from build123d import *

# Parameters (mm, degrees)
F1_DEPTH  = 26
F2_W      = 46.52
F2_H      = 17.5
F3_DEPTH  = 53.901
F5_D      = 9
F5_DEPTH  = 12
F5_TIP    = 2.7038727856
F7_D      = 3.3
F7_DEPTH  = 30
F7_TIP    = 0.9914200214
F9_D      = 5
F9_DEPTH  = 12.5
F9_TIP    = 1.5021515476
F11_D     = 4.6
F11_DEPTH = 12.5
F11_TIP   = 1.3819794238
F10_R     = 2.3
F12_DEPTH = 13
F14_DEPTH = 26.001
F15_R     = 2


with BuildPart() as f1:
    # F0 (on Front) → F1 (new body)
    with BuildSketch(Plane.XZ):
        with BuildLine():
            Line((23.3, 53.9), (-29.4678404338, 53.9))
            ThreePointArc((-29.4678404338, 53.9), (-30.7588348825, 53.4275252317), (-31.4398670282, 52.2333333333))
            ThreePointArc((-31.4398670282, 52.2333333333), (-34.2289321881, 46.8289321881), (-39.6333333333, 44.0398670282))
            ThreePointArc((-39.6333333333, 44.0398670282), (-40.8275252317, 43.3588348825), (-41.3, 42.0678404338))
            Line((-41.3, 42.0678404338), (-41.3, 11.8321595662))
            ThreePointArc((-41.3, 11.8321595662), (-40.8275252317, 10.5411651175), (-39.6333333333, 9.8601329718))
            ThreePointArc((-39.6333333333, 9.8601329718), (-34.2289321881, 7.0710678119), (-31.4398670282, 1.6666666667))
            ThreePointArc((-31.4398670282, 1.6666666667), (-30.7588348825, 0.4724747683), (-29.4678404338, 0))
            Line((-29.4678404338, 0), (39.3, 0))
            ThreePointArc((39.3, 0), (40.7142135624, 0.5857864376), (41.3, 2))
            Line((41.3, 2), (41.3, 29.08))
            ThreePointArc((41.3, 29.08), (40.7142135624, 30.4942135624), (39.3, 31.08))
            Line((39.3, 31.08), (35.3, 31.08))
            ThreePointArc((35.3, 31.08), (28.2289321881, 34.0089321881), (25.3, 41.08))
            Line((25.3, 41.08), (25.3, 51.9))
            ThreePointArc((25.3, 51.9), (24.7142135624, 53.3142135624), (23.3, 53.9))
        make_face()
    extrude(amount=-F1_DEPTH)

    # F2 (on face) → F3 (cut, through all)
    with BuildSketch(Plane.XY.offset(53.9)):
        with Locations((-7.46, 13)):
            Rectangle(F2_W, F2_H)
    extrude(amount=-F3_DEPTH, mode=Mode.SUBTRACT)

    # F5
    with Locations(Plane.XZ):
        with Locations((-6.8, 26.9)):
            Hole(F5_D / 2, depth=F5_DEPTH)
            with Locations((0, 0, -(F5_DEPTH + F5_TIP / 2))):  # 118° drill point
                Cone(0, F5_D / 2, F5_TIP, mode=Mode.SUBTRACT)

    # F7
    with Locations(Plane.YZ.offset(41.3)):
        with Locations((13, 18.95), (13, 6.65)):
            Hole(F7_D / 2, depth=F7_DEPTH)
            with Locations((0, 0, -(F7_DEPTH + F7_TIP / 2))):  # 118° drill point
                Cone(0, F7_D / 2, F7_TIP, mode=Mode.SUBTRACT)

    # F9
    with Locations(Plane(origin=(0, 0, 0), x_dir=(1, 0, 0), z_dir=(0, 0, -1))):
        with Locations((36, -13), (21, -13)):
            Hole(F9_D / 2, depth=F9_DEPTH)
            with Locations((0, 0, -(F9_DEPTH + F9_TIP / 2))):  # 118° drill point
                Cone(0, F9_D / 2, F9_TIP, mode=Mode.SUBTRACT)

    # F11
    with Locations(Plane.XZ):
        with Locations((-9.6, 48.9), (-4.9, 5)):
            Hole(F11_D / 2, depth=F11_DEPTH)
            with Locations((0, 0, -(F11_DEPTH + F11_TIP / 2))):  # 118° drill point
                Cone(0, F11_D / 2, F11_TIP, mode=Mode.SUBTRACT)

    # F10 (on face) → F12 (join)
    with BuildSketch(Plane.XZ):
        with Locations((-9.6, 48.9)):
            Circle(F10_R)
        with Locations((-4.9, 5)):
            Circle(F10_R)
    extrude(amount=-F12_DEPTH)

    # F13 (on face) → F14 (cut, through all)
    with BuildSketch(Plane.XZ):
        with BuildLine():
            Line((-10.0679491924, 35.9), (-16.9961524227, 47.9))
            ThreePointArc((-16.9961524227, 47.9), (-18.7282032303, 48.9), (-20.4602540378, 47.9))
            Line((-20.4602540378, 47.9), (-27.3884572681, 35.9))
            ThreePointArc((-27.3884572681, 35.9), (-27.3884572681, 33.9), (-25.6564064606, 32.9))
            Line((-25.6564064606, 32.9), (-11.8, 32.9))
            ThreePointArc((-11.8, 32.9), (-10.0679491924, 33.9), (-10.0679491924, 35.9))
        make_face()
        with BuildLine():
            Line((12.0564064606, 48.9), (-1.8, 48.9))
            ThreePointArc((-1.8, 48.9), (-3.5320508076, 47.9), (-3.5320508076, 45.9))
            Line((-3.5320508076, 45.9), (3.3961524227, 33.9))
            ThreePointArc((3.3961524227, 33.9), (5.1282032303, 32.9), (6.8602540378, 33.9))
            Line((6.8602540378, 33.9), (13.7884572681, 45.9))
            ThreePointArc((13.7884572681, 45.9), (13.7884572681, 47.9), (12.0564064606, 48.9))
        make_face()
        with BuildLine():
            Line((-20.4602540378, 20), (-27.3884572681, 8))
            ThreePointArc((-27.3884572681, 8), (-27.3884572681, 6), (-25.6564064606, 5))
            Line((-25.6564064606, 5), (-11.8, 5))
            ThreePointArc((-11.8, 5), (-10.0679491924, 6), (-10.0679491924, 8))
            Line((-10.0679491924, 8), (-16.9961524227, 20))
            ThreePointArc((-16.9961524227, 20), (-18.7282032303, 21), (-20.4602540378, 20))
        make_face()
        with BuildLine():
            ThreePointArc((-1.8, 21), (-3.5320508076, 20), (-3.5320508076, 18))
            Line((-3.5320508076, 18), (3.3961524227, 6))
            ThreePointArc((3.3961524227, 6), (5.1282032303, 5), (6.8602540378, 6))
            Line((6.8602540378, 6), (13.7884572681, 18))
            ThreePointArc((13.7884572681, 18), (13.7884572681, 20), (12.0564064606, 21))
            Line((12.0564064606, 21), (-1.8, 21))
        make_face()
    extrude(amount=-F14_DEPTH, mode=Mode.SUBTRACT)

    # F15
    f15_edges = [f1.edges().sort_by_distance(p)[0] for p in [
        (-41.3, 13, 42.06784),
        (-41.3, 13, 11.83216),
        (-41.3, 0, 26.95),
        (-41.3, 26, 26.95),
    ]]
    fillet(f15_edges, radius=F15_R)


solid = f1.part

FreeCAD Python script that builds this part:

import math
import FreeCAD as App
import Part
import Sketcher
from FreeCAD import Vector
Q = App.Units.Quantity


def edges_at(feature, points):
    """Names of the edges that pass closest to the given points."""
    edges = feature.Shape.Edges
    near = lambda p: min(range(len(edges)), key=lambda i: edges[i].distToShape(Part.Vertex(*p))[0])
    return sorted({f"Edge{near(p) + 1}" for p in points})


def add_polygon(sketch, points):
    """Adds a closed chain of lines whose ends are joined by coincident constraints."""
    first, n = sketch.GeometryCount, len(points)
    for a, b in zip(points, points[1:] + points[:1]):
        sketch.addGeometry(Part.LineSegment(App.Vector(*a, 0), App.Vector(*b, 0)), False)
    for i in range(n):
        sketch.addConstraint(Sketcher.Constraint("Coincident", first + i, 2, first + (i + 1) % n, 1))

doc = App.newDocument("Part")
params = doc.addObject("Spreadsheet::Sheet", "Params")
for row, (alias, value) in enumerate([
    ("sketch1_radius", "2 mm"),
    ("sketch1_radius2", "10 mm"),
    ("sketch1_width", "4 mm"),
    ("sketch1_height", "27.08 mm"),
    ("sketch1_height2", "10.82 mm"),
    ("pad1_length", "26 mm"),
    ("sketch2_height", "17.5 mm"),
    ("sketch2_width", "46.52 mm"),
    ("sketch3_diameter", "9 mm"),
    ("hole_diameter", "9 mm"),
    ("hole_depth", "12 mm"),
    ("sketch4_diameter", "3.3 mm"),
    ("hole2_diameter", "3.3 mm"),
    ("hole2_depth", "30 mm"),
    ("sketch5_diameter", "5 mm"),
    ("hole3_diameter", "5 mm"),
    ("hole3_depth", "12.5 mm"),
    ("sketch6_diameter", "4.6 mm"),
    ("hole4_diameter", "4.6 mm"),
    ("hole4_depth", "12.5 mm"),
    ("sketch7_diameter", "4.6 mm"),
    ("pad2_length", "13 mm"),
    ("sketch8_radius", "2 mm"),
    ("fillet_radius", "2 mm"),
], start=1):
    params.set(f"A{row}", alias)
    params.set(f"B{row}", "=" + value)
    params.setAlias(f"B{row}", alias)

body = doc.addObject("PartDesign::Body", "Body")

# Sketch on XZ plane
sketch1 = body.newObject("Sketcher::SketchObject", "Sketch")
sketch1.AttachmentSupport = (doc.getObject("XZ_Plane"), [""])
sketch1.MapMode = "FlatFace"
sketch1.addGeometry(Part.LineSegment(Vector(23.3, 53.9, 0), Vector(-29.5, 53.9, 0)), False)
sketch1.addGeometry(Part.ArcOfCircle(Part.Circle(Vector(-29.5, 51.9, 0), Vector(0, 0, 1), 2), math.radians(90), math.radians(170)), False)
sketch1.addGeometry(Part.ArcOfCircle(Part.Circle(Vector(-41.3, 53.9, 0), Vector(0, 0, 1), 10), math.radians(-80), math.radians(-10)), False)
sketch1.addGeometry(Part.ArcOfCircle(Part.Circle(Vector(-39.3, 42.1, 0), Vector(0, 0, 1), 2), math.radians(100), math.radians(180)), False)
sketch1.addGeometry(Part.LineSegment(Vector(-41.3, 42.1, 0), Vector(-41.3, 11.8, 0)), False)
sketch1.addGeometry(Part.ArcOfCircle(Part.Circle(Vector(-39.3, 11.8, 0), Vector(0, 0, 1), 2), math.radians(180), math.radians(260)), False)
sketch1.addGeometry(Part.ArcOfCircle(Part.Circle(Vector(-41.3, 0, 0), Vector(0, 0, 1), 10), math.radians(10), math.radians(80)), False)
sketch1.addGeometry(Part.ArcOfCircle(Part.Circle(Vector(-29.5, 2, 0), Vector(0, 0, 1), 2), math.radians(-170), math.radians(-90)), False)
sketch1.addGeometry(Part.LineSegment(Vector(-29.5, 0, 0), Vector(39.3, 0, 0)), False)
sketch1.addGeometry(Part.ArcOfCircle(Part.Circle(Vector(39.3, 2, 0), Vector(0, 0, 1), 2), math.radians(-90), math.radians(0)), False)
sketch1.addGeometry(Part.LineSegment(Vector(41.3, 2, 0), Vector(41.3, 29.1, 0)), False)
sketch1.addGeometry(Part.ArcOfCircle(Part.Circle(Vector(39.3, 29.1, 0), Vector(0, 0, 1), 2), math.radians(0), math.radians(90)), False)
sketch1.addGeometry(Part.LineSegment(Vector(39.3, 31.1, 0), Vector(35.3, 31.1, 0)), False)
sketch1.addGeometry(Part.ArcOfCircle(Part.Circle(Vector(35.3, 41.1, 0), Vector(0, 0, 1), 10), math.radians(180), math.radians(270)), False)
sketch1.addGeometry(Part.LineSegment(Vector(25.3, 41.1, 0), Vector(25.3, 51.9, 0)), False)
sketch1.addGeometry(Part.ArcOfCircle(Part.Circle(Vector(23.3, 51.9, 0), Vector(0, 0, 1), 2), math.radians(0), math.radians(90)), False)
sketch1.addConstraint(Sketcher.Constraint("Tangent", 0, 2, 1, 1))
sketch1.addConstraint(Sketcher.Constraint("Tangent", 1, 2, 2, 2))
sketch1.addConstraint(Sketcher.Constraint("Tangent", 2, 1, 3, 1))
sketch1.addConstraint(Sketcher.Constraint("Tangent", 3, 2, 4, 1))
sketch1.addConstraint(Sketcher.Constraint("Tangent", 4, 2, 5, 1))
sketch1.addConstraint(Sketcher.Constraint("Tangent", 5, 2, 6, 2))
sketch1.addConstraint(Sketcher.Constraint("Tangent", 6, 1, 7, 1))
sketch1.addConstraint(Sketcher.Constraint("Tangent", 7, 2, 8, 1))
sketch1.addConstraint(Sketcher.Constraint("Tangent", 8, 2, 9, 1))
sketch1.addConstraint(Sketcher.Constraint("Tangent", 9, 2, 10, 1))
sketch1.addConstraint(Sketcher.Constraint("Tangent", 10, 2, 11, 1))
sketch1.addConstraint(Sketcher.Constraint("Tangent", 11, 2, 12, 1))
sketch1.addConstraint(Sketcher.Constraint("Tangent", 12, 2, 13, 2))
sketch1.addConstraint(Sketcher.Constraint("Tangent", 13, 1, 14, 1))
sketch1.addConstraint(Sketcher.Constraint("Tangent", 14, 2, 15, 1))
sketch1.addConstraint(Sketcher.Constraint("Tangent", 15, 2, 0, 1))
sketch1.addConstraint(Sketcher.Constraint("Horizontal", 0))
sketch1.addConstraint(Sketcher.Constraint("Vertical", 4))
sketch1.addConstraint(Sketcher.Constraint("Horizontal", 8))
sketch1.addConstraint(Sketcher.Constraint("Vertical", 10))
sketch1.addConstraint(Sketcher.Constraint("Horizontal", 12))
sketch1.addConstraint(Sketcher.Constraint("Vertical", 14))
sketch1.addConstraint(Sketcher.Constraint("Equal", 1, 3))
sketch1.addConstraint(Sketcher.Constraint("Equal", 3, 5))
sketch1.addConstraint(Sketcher.Constraint("Equal", 2, 6))
sketch1.addConstraint(Sketcher.Constraint("Equal", 5, 7))
sketch1.addConstraint(Sketcher.Constraint("Equal", 7, 9))
sketch1.addConstraint(Sketcher.Constraint("Equal", 9, 11))
sketch1.addConstraint(Sketcher.Constraint("Equal", 6, 13))
sketch1.addConstraint(Sketcher.Constraint("Equal", 11, 15))
sketch1.addConstraint(Sketcher.Constraint("PointOnObject", 6, 3, -1))
sketch1.addConstraint(Sketcher.Constraint("PointOnObject", 7, 2, -1))
sketch1.addConstraint(Sketcher.Constraint("Horizontal", 2, 3, 0, 2))
sketch1.addConstraint(Sketcher.Constraint("Vertical", 2, 3, 6, 3))
sketch1.addConstraint(Sketcher.Constraint("Vertical", 6, 3, 3, 2))
sketch1.addConstraint(Sketcher.Constraint("Radius", 1, Q("2 mm")))
sketch1.addConstraint(Sketcher.Constraint("Radius", 2, Q("10 mm")))
sketch1.addConstraint(Sketcher.Constraint("DistanceX", 12, 2, 12, 1, Q("4 mm")))
sketch1.addConstraint(Sketcher.Constraint("DistanceY", 10, 1, 10, 2, Q("27.08 mm")))
sketch1.addConstraint(Sketcher.Constraint("DistanceY", 14, 1, 14, 2, Q("10.82 mm")))
sketch1.addConstraint(Sketcher.Constraint("DistanceX", 2, 3, -1, 1, Q("41.3 mm")))
sketch1.addConstraint(Sketcher.Constraint("DistanceX", -1, 1, 9, 3, Q("39.3 mm")))
sketch1.setExpression("Constraints[35]", "Params.sketch1_radius")
sketch1.setExpression("Constraints[36]", "Params.sketch1_radius2")
sketch1.setExpression("Constraints[37]", "Params.sketch1_width")
sketch1.setExpression("Constraints[38]", "Params.sketch1_height")
sketch1.setExpression("Constraints[39]", "Params.sketch1_height2")
pad1 = body.newObject("PartDesign::Pad", "Pad")
pad1.Profile = sketch1
pad1.setExpression("Length", "Params.pad1_length")
pad1.Reversed = True

# Sketch on XY plane
sketch2 = body.newObject("Sketcher::SketchObject", "Sketch001")
sketch2.AttachmentSupport = (doc.getObject("XY_Plane"), [""])
sketch2.MapMode = "FlatFace"
sketch2.AttachmentOffset = App.Placement(Vector(0, 0, 53.9), App.Rotation())
add_polygon(sketch2, [(-31, 22), (-31, 4), (16, 4), (16, 22)])  # lines 0-3
sketch2.addConstraint(Sketcher.Constraint("Vertical", 0))
sketch2.addConstraint(Sketcher.Constraint("Horizontal", 1))
sketch2.addConstraint(Sketcher.Constraint("Vertical", 2))
sketch2.addConstraint(Sketcher.Constraint("Horizontal", 3))
sketch2.addConstraint(Sketcher.Constraint("DistanceY", 0, 2, 0, 1, Q("17.5 mm")))
sketch2.addConstraint(Sketcher.Constraint("DistanceX", 1, 1, 1, 2, Q("46.52 mm")))
sketch2.addConstraint(Sketcher.Constraint("DistanceX", -1, 1, 1, 2, Q("15.8 mm")))
sketch2.addConstraint(Sketcher.Constraint("DistanceY", -1, 1, 0, 2, Q("4.25 mm")))
sketch2.setExpression("Constraints[8]", "Params.sketch2_height")
sketch2.setExpression("Constraints[9]", "Params.sketch2_width")
pocket1 = body.newObject("PartDesign::Pocket", "Pocket")
pocket1.Profile = sketch2
pocket1.Type = "ThroughAll"

# Sketch on XZ plane
sketch3 = body.newObject("Sketcher::SketchObject", "Sketch002")
sketch3.AttachmentSupport = (doc.getObject("XZ_Plane"), [""])
sketch3.MapMode = "FlatFace"
sketch3.addGeometry(Part.Circle(Vector(-6.8, 26.9, 0), Vector(0, 0, 1), 4.5), False)
sketch3.addConstraint(Sketcher.Constraint("Diameter", 0, Q("9 mm")))
sketch3.addConstraint(Sketcher.Constraint("DistanceX", 0, 3, -1, 1, Q("6.8 mm")))
sketch3.addConstraint(Sketcher.Constraint("DistanceY", -1, 1, 0, 3, Q("26.9 mm")))
sketch3.setExpression("Constraints[0]", "Params.sketch3_diameter")
doc.recompute()
hole = body.newObject("PartDesign::Hole", "Hole")
hole.Profile = sketch3
hole.ThreadType = "None"
hole.setExpression("Diameter", "Params.hole_diameter")
hole.DepthType = "Dimension"
hole.setExpression("Depth", "Params.hole_depth")
hole.DrillPoint = "Angled"
hole.DrillPointAngle = 118

# Sketch on YZ plane
sketch4 = body.newObject("Sketcher::SketchObject", "Sketch003")
sketch4.AttachmentSupport = (doc.getObject("YZ_Plane"), [""])
sketch4.MapMode = "FlatFace"
sketch4.AttachmentOffset = App.Placement(Vector(0, 0, 41.3), App.Rotation())
sketch4.addGeometry(Part.Circle(Vector(13, 18.9, 0), Vector(0, 0, 1), 1.6), False)
sketch4.addGeometry(Part.Circle(Vector(13, 6.7, 0), Vector(0, 0, 1), 1.6), False)
sketch4.addConstraint(Sketcher.Constraint("Equal", 0, 1))
sketch4.addConstraint(Sketcher.Constraint("Vertical", 0, 3, 1, 3))
sketch4.addConstraint(Sketcher.Constraint("Diameter", 0, Q("3.3 mm")))
sketch4.addConstraint(Sketcher.Constraint("DistanceX", -1, 1, 0, 3, Q("13 mm")))
sketch4.addConstraint(Sketcher.Constraint("DistanceY", 1, 3, 0, 3, Q("12.3 mm")))
sketch4.addConstraint(Sketcher.Constraint("DistanceY", -1, 1, 0, 3, Q("18.95 mm")))
sketch4.setExpression("Constraints[2]", "Params.sketch4_diameter")
doc.recompute()
hole2 = body.newObject("PartDesign::Hole", "Hole001")
hole2.Profile = sketch4
hole2.ThreadType = "None"
hole2.setExpression("Diameter", "Params.hole2_diameter")
hole2.DepthType = "Dimension"
hole2.setExpression("Depth", "Params.hole2_depth")
hole2.DrillPoint = "Angled"
hole2.DrillPointAngle = 118

# Sketch on XY plane
sketch5 = body.newObject("Sketcher::SketchObject", "Sketch004")
sketch5.AttachmentSupport = (doc.getObject("XY_Plane"), [""])
sketch5.MapMode = "FlatFace"
sketch5.addGeometry(Part.Circle(Vector(36, 13, 0), Vector(0, 0, 1), 2.5), False)
sketch5.addGeometry(Part.Circle(Vector(21, 13, 0), Vector(0, 0, 1), 2.5), False)
sketch5.addConstraint(Sketcher.Constraint("Equal", 0, 1))
sketch5.addConstraint(Sketcher.Constraint("Horizontal", 0, 3, 1, 3))
sketch5.addConstraint(Sketcher.Constraint("Diameter", 0, Q("5 mm")))
sketch5.addConstraint(Sketcher.Constraint("DistanceX", -1, 1, 0, 3, Q("36 mm")))
sketch5.addConstraint(Sketcher.Constraint("DistanceY", -1, 1, 0, 3, Q("13 mm")))
sketch5.addConstraint(Sketcher.Constraint("DistanceX", -1, 1, 1, 3, Q("21 mm")))
sketch5.setExpression("Constraints[2]", "Params.sketch5_diameter")
doc.recompute()
hole3 = body.newObject("PartDesign::Hole", "Hole002")
hole3.Profile = sketch5
hole3.ThreadType = "None"
hole3.setExpression("Diameter", "Params.hole3_diameter")
hole3.DepthType = "Dimension"
hole3.setExpression("Depth", "Params.hole3_depth")
hole3.DrillPoint = "Angled"
hole3.DrillPointAngle = 118
hole3.Reversed = True

# Sketch on XZ plane
sketch6 = body.newObject("Sketcher::SketchObject", "Sketch005")
sketch6.AttachmentSupport = (doc.getObject("XZ_Plane"), [""])
sketch6.MapMode = "FlatFace"
sketch6.addGeometry(Part.Circle(Vector(-9.6, 48.9, 0), Vector(0, 0, 1), 2.3), False)
sketch6.addGeometry(Part.Circle(Vector(-4.9, 5, 0), Vector(0, 0, 1), 2.3), False)
sketch6.addConstraint(Sketcher.Constraint("Equal", 0, 1))
sketch6.addConstraint(Sketcher.Constraint("Diameter", 0, Q("4.6 mm")))
sketch6.addConstraint(Sketcher.Constraint("DistanceY", -1, 1, 1, 3, Q("5 mm")))
sketch6.addConstraint(Sketcher.Constraint("DistanceX", 0, 3, -1, 1, Q("9.6 mm")))
sketch6.addConstraint(Sketcher.Constraint("DistanceY", -1, 1, 0, 3, Q("48.9 mm")))
sketch6.addConstraint(Sketcher.Constraint("DistanceX", 1, 3, -1, 1, Q("4.9 mm")))
sketch6.setExpression("Constraints[1]", "Params.sketch6_diameter")
doc.recompute()
hole4 = body.newObject("PartDesign::Hole", "Hole003")
hole4.Profile = sketch6
hole4.ThreadType = "None"
hole4.setExpression("Diameter", "Params.hole4_diameter")
hole4.DepthType = "Dimension"
hole4.setExpression("Depth", "Params.hole4_depth")
hole4.DrillPoint = "Angled"
hole4.DrillPointAngle = 118

# Sketch on XZ plane
sketch7 = body.newObject("Sketcher::SketchObject", "Sketch006")
sketch7.AttachmentSupport = (doc.getObject("XZ_Plane"), [""])
sketch7.MapMode = "FlatFace"
sketch7.addGeometry(Part.Circle(Vector(-9.6, 48.9, 0), Vector(0, 0, 1), 2.3), False)
sketch7.addGeometry(Part.Circle(Vector(-4.9, 5, 0), Vector(0, 0, 1), 2.3), False)
sketch7.addConstraint(Sketcher.Constraint("Equal", 0, 1))
sketch7.addConstraint(Sketcher.Constraint("Diameter", 0, Q("4.6 mm")))
sketch7.addConstraint(Sketcher.Constraint("DistanceY", -1, 1, 1, 3, Q("5 mm")))
sketch7.addConstraint(Sketcher.Constraint("DistanceX", 0, 3, -1, 1, Q("9.6 mm")))
sketch7.addConstraint(Sketcher.Constraint("DistanceY", -1, 1, 0, 3, Q("48.9 mm")))
sketch7.addConstraint(Sketcher.Constraint("DistanceX", 1, 3, -1, 1, Q("4.9 mm")))
sketch7.setExpression("Constraints[1]", "Params.sketch7_diameter")
pad2 = body.newObject("PartDesign::Pad", "Pad001")
pad2.Profile = sketch7
pad2.setExpression("Length", "Params.pad2_length")
pad2.Reversed = True

# Sketch on XZ plane
sketch8 = body.newObject("Sketcher::SketchObject", "Sketch007")
sketch8.AttachmentSupport = (doc.getObject("XZ_Plane"), [""])
sketch8.MapMode = "FlatFace"
sketch8.addGeometry(Part.LineSegment(Vector(-10.1, 35.9, 0), Vector(-17, 47.9, 0)), False)
sketch8.addGeometry(Part.ArcOfCircle(Part.Circle(Vector(-18.7, 46.9, 0), Vector(0, 0, 1), 2), math.radians(30), math.radians(150)), False)
sketch8.addGeometry(Part.LineSegment(Vector(-20.5, 47.9, 0), Vector(-27.4, 35.9, 0)), False)
sketch8.addGeometry(Part.ArcOfCircle(Part.Circle(Vector(-25.7, 34.9, 0), Vector(0, 0, 1), 2), math.radians(150), math.radians(270)), False)
sketch8.addGeometry(Part.LineSegment(Vector(-25.7, 32.9, 0), Vector(-11.8, 32.9, 0)), False)
sketch8.addGeometry(Part.ArcOfCircle(Part.Circle(Vector(-11.8, 34.9, 0), Vector(0, 0, 1), 2), math.radians(-90), math.radians(30)), False)
sketch8.addGeometry(Part.LineSegment(Vector(12.1, 48.9, 0), Vector(-1.8, 48.9, 0)), False)
sketch8.addGeometry(Part.ArcOfCircle(Part.Circle(Vector(-1.8, 46.9, 0), Vector(0, 0, 1), 2), math.radians(90), math.radians(210)), False)
sketch8.addGeometry(Part.LineSegment(Vector(-3.5, 45.9, 0), Vector(3.4, 33.9, 0)), False)
sketch8.addGeometry(Part.ArcOfCircle(Part.Circle(Vector(5.1, 34.9, 0), Vector(0, 0, 1), 2), math.radians(-150), math.radians(-30)), False)
sketch8.addGeometry(Part.LineSegment(Vector(6.9, 33.9, 0), Vector(13.8, 45.9, 0)), False)
sketch8.addGeometry(Part.ArcOfCircle(Part.Circle(Vector(12.1, 46.9, 0), Vector(0, 0, 1), 2), math.radians(-30), math.radians(90)), False)
sketch8.addGeometry(Part.LineSegment(Vector(-20.5, 20, 0), Vector(-27.4, 8, 0)), False)
sketch8.addGeometry(Part.ArcOfCircle(Part.Circle(Vector(-25.7, 7, 0), Vector(0, 0, 1), 2), math.radians(150), math.radians(270)), False)
sketch8.addGeometry(Part.LineSegment(Vector(-25.7, 5, 0), Vector(-11.8, 5, 0)), False)
sketch8.addGeometry(Part.ArcOfCircle(Part.Circle(Vector(-11.8, 7, 0), Vector(0, 0, 1), 2), math.radians(-90), math.radians(30)), False)
sketch8.addGeometry(Part.LineSegment(Vector(-10.1, 8, 0), Vector(-17, 20, 0)), False)
sketch8.addGeometry(Part.ArcOfCircle(Part.Circle(Vector(-18.7, 19, 0), Vector(0, 0, 1), 2), math.radians(30), math.radians(150)), False)
sketch8.addGeometry(Part.ArcOfCircle(Part.Circle(Vector(-1.8, 19, 0), Vector(0, 0, 1), 2), math.radians(90), math.radians(210)), False)
sketch8.addGeometry(Part.LineSegment(Vector(-3.5, 18, 0), Vector(3.4, 6, 0)), False)
sketch8.addGeometry(Part.ArcOfCircle(Part.Circle(Vector(5.1, 7, 0), Vector(0, 0, 1), 2), math.radians(-150), math.radians(-30)), False)
sketch8.addGeometry(Part.LineSegment(Vector(6.9, 6, 0), Vector(13.8, 18, 0)), False)
sketch8.addGeometry(Part.ArcOfCircle(Part.Circle(Vector(12.1, 19, 0), Vector(0, 0, 1), 2), math.radians(-30), math.radians(90)), False)
sketch8.addGeometry(Part.LineSegment(Vector(12.1, 21, 0), Vector(-1.8, 21, 0)), False)
sketch8.addConstraint(Sketcher.Constraint("Tangent", 0, 2, 1, 1))
sketch8.addConstraint(Sketcher.Constraint("Tangent", 1, 2, 2, 1))
sketch8.addConstraint(Sketcher.Constraint("Tangent", 2, 2, 3, 1))
sketch8.addConstraint(Sketcher.Constraint("Tangent", 3, 2, 4, 1))
sketch8.addConstraint(Sketcher.Constraint("Tangent", 4, 2, 5, 1))
sketch8.addConstraint(Sketcher.Constraint("Tangent", 5, 2, 0, 1))
sketch8.addConstraint(Sketcher.Constraint("Tangent", 6, 2, 7, 1))
sketch8.addConstraint(Sketcher.Constraint("Tangent", 7, 2, 8, 1))
sketch8.addConstraint(Sketcher.Constraint("Tangent", 8, 2, 9, 1))
sketch8.addConstraint(Sketcher.Constraint("Tangent", 9, 2, 10, 1))
sketch8.addConstraint(Sketcher.Constraint("Tangent", 10, 2, 11, 1))
sketch8.addConstraint(Sketcher.Constraint("Tangent", 11, 2, 6, 1))
sketch8.addConstraint(Sketcher.Constraint("Tangent", 12, 2, 13, 1))
sketch8.addConstraint(Sketcher.Constraint("Tangent", 13, 2, 14, 1))
sketch8.addConstraint(Sketcher.Constraint("Tangent", 14, 2, 15, 1))
sketch8.addConstraint(Sketcher.Constraint("Tangent", 15, 2, 16, 1))
sketch8.addConstraint(Sketcher.Constraint("Tangent", 16, 2, 17, 1))
sketch8.addConstraint(Sketcher.Constraint("Tangent", 17, 2, 12, 1))
sketch8.addConstraint(Sketcher.Constraint("Tangent", 18, 2, 19, 1))
sketch8.addConstraint(Sketcher.Constraint("Tangent", 19, 2, 20, 1))
sketch8.addConstraint(Sketcher.Constraint("Tangent", 20, 2, 21, 1))
sketch8.addConstraint(Sketcher.Constraint("Tangent", 21, 2, 22, 1))
sketch8.addConstraint(Sketcher.Constraint("Tangent", 22, 2, 23, 1))
sketch8.addConstraint(Sketcher.Constraint("Tangent", 23, 2, 18, 1))
sketch8.addConstraint(Sketcher.Constraint("Horizontal", 4))
sketch8.addConstraint(Sketcher.Constraint("Horizontal", 6))
sketch8.addConstraint(Sketcher.Constraint("Horizontal", 14))
sketch8.addConstraint(Sketcher.Constraint("Horizontal", 23))
sketch8.addConstraint(Sketcher.Constraint("Equal", 1, 3))
sketch8.addConstraint(Sketcher.Constraint("Equal", 3, 5))
sketch8.addConstraint(Sketcher.Constraint("Equal", 5, 7))
sketch8.addConstraint(Sketcher.Constraint("Equal", 7, 9))
sketch8.addConstraint(Sketcher.Constraint("Equal", 9, 11))
sketch8.addConstraint(Sketcher.Constraint("Equal", 11, 13))
sketch8.addConstraint(Sketcher.Constraint("Equal", 13, 15))
sketch8.addConstraint(Sketcher.Constraint("Equal", 15, 17))
sketch8.addConstraint(Sketcher.Constraint("Equal", 17, 18))
sketch8.addConstraint(Sketcher.Constraint("Equal", 18, 20))
sketch8.addConstraint(Sketcher.Constraint("Equal", 20, 22))
sketch8.addConstraint(Sketcher.Constraint("Parallel", 0, 8))
sketch8.addConstraint(Sketcher.Constraint("Parallel", 2, 10))
sketch8.addConstraint(Sketcher.Constraint("Parallel", 10, 12))
sketch8.addConstraint(Sketcher.Constraint("Parallel", 8, 16))
sketch8.addConstraint(Sketcher.Constraint("Parallel", 16, 19))
sketch8.addConstraint(Sketcher.Constraint("Parallel", 12, 21))
sketch8.addConstraint(Sketcher.Constraint("Horizontal", 1, 3, 7, 3))
sketch8.addConstraint(Sketcher.Constraint("Horizontal", 5, 3, 9, 3))
sketch8.addConstraint(Sketcher.Constraint("Horizontal", 17, 3, 18, 3))
sketch8.addConstraint(Sketcher.Constraint("Horizontal", 15, 3, 20, 3))
sketch8.addConstraint(Sketcher.Constraint("Horizontal", 0, 2, 1, 2))
sketch8.addConstraint(Sketcher.Constraint("Vertical", 3, 3, 13, 3))
sketch8.addConstraint(Sketcher.Constraint("Vertical", 5, 3, 15, 3))
sketch8.addConstraint(Sketcher.Constraint("Vertical", 7, 3, 18, 3))
sketch8.addConstraint(Sketcher.Constraint("Radius", 1, Q("2 mm")))
sketch8.addConstraint(Sketcher.Constraint("Angle", 0, Q("120 deg")))
sketch8.addConstraint(Sketcher.Constraint("DistanceY", -1, 1, 13, 3, Q("7 mm")))
sketch8.addConstraint(Sketcher.Constraint("DistanceY", -1, 1, 17, 3, Q("19 mm")))
sketch8.addConstraint(Sketcher.Constraint("DistanceX", 5, 3, 7, 3, Q("10 mm")))
sketch8.addConstraint(Sketcher.Constraint("DistanceY", -1, 1, 1, 3, Q("46.9 mm")))
sketch8.addConstraint(Sketcher.Constraint("DistanceX", 5, 3, -1, 1, Q("11.8 mm")))
sketch8.setExpression("Constraints[53]", "Params.sketch8_radius")
pocket2 = body.newObject("PartDesign::Pocket", "Pocket001")
pocket2.Profile = sketch8
pocket2.Type = "ThroughAll"
doc.recompute()

fillet = body.newObject("PartDesign::Fillet", "Fillet")
fillet.Base = (pocket2, edges_at(pocket2, [
    (-41.3, 13, 42.068),
    (-41.3, 13, 11.832),
    (-41.3, 0, 26.95),
    (-41.3, 26, 26.95),
]))
fillet.setExpression("Radius", "Params.fillet_radius")

doc.recompute()
